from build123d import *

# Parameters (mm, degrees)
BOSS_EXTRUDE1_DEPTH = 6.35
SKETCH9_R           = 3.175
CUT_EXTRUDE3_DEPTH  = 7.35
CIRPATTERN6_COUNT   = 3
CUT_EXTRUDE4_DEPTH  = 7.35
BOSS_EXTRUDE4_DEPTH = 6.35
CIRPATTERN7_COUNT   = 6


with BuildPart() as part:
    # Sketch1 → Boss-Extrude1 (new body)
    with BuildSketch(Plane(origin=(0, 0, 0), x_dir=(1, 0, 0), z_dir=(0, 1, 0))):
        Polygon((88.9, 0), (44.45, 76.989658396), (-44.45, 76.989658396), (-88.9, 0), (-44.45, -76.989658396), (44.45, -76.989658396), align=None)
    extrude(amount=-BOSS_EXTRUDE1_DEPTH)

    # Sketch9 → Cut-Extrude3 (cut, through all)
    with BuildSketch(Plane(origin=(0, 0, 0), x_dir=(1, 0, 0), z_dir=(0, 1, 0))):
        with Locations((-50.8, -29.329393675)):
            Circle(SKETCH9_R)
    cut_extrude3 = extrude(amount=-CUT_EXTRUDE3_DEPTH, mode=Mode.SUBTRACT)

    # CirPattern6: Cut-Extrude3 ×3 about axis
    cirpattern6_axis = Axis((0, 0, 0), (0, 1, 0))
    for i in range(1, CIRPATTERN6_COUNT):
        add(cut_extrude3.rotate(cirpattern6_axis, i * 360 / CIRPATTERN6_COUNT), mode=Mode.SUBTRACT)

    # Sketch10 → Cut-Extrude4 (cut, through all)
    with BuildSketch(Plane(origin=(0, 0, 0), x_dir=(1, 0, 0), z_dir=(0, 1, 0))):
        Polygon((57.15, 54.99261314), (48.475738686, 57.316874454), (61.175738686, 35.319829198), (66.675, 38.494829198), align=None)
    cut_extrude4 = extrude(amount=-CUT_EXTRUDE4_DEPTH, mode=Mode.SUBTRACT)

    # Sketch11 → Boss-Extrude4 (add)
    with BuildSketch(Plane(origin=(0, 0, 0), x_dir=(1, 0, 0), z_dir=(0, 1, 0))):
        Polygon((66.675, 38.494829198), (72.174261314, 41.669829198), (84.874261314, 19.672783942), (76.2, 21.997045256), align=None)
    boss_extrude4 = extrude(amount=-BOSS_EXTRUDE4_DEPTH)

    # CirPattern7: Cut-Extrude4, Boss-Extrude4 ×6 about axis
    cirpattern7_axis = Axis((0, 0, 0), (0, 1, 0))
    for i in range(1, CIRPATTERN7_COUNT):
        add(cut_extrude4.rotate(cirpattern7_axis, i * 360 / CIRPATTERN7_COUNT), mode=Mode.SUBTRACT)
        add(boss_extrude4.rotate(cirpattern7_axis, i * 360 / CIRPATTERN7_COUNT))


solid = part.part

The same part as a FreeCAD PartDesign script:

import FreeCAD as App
import Part
import Sketcher

V = App.Vector
Q = App.Units.Quantity


def add_polygon(sketch, points):
    """Adds a closed chain of lines whose ends are joined by coincident constraints."""
    first, n = sketch.GeometryCount, len(points)
    for a, b in zip(points, points[1:] + points[:1]):
        sketch.addGeometry(Part.LineSegment(App.Vector(*a, 0), App.Vector(*b, 0)), False)
    for i in range(n):
        sketch.addConstraint(Sketcher.Constraint("Coincident", first + i, 2, first + (i + 1) % n, 1))

doc = App.newDocument("Part")
body = doc.addObject("PartDesign::Body", "Body")

# Sketch on XZ plane
sketch1 = body.newObject("Sketcher::SketchObject", "Sketch")
sketch1.AttachmentSupport = (doc.getObject("XZ_Plane"), [""])
sketch1.MapMode = "FlatFace"
add_polygon(sketch1, [(88.9, 0), (44.45, -76.989658), (-44.45, -76.989658), (-88.9, 0), (-44.45, 76.989658), (44.45, 76.989658)])  # lines 0-5
sketch1.addConstraint(Sketcher.Constraint("Horizontal", 1))
sketch1.addConstraint(Sketcher.Constraint("Horizontal", 4))
sketch1.addConstraint(Sketcher.Constraint("Symmetric", 0, 2, 3, 2, -1, 1))
sketch1.addConstraint(Sketcher.Constraint("Symmetric", 2, 2, 5, 2, -1, 1))
sketch1.addConstraint(Sketcher.Constraint("PointOnObject", 2, 2, -1))
sketch1.addConstraint(Sketcher.Constraint("Parallel", 2, 5))
sketch1.addConstraint(Sketcher.Constraint("Vertical", 1, 2, 3, 2))
sketch1.addConstraint(Sketcher.Constraint("DistanceX", 1, 2, 1, 1, Q("3.5 in")))
sketch1.addConstraint(Sketcher.Constraint("Angle", 0, Q("-120 deg")))
sketch1.addConstraint(Sketcher.Constraint("DistanceX", 2, 2, 5, 2, Q("7 in")))
pad1 = body.newObject("PartDesign::Pad", "Pad")
pad1.Profile = sketch1
pad1.Length = Q("0.25 in")

# Sketch on XZ plane
sketch2 = body.newObject("Sketcher::SketchObject", "Sketch001")
sketch2.AttachmentSupport = (doc.getObject("XZ_Plane"), [""])
sketch2.MapMode = "FlatFace"
sketch2.addGeometry(Part.Circle(V(-50.8, 29.329394, 0), V(0, 0, 1), 3.175), False)
sketch2.addConstraint(Sketcher.Constraint("Diameter", 0, Q("0.25 in")))
sketch2.addConstraint(Sketcher.Constraint("DistanceX", 0, 3, -1, 1, Q("2 in")))
sketch2.addConstraint(Sketcher.Constraint("DistanceY", -1, 1, 0, 3, 29.329394))
pocket1 = body.newObject("PartDesign::Pocket", "Pocket")
pocket1.Profile = sketch2
pocket1.Type = "ThroughAll"
pocket1.Reversed = True
doc.recompute()

polarpattern = body.newObject("PartDesign::PolarPattern", "PolarPattern")
polarpattern.Originals = [pocket1]
polarpattern.Axis = (doc.getObject("Y_Axis"), [""])
polarpattern.Angle = 360
polarpattern.Occurrences = 3
body.Tip = polarpattern

# Sketch on XZ plane
sketch3 = body.newObject("Sketcher::SketchObject", "Sketch002")
sketch3.AttachmentSupport = (doc.getObject("XZ_Plane"), [""])
sketch3.MapMode = "FlatFace"
add_polygon(sketch3, [(57.15, -54.992613), (48.475739, -57.316874), (61.175739, -35.319829), (66.675, -38.494829)])  # lines 0-3
sketch3.addConstraint(Sketcher.Constraint("Perpendicular", 1, 2))
sketch3.addConstraint(Sketcher.Constraint("Perpendicular", 2, 3))
sketch3.addConstraint(Sketcher.Constraint("Distance", 1, Q("1 in")))
sketch3.addConstraint(Sketcher.Constraint("Angle", 0, Q("-165 deg")))
sketch3.addConstraint(Sketcher.Constraint("Angle", 1, Q("60 deg")))
sketch3.addConstraint(Sketcher.Constraint("Distance", 2, Q("0.25 in")))
sketch3.addConstraint(Sketcher.Constraint("DistanceX", -1, 1, 3, 2, Q("2.25 in")))
sketch3.addConstraint(Sketcher.Constraint("DistanceY", 1, 2, -1, 1, 35.319829))
pocket2 = body.newObject("PartDesign::Pocket", "Pocket001")
pocket2.Profile = sketch3
pocket2.Type = "ThroughAll"
pocket2.Reversed = True

# Sketch on XZ plane
sketch4 = body.newObject("Sketcher::SketchObject", "Sketch003")
sketch4.AttachmentSupport = (doc.getObject("XZ_Plane"), [""])
sketch4.MapMode = "FlatFace"
add_polygon(sketch4, [(72.174261, -41.669829), (66.675, -38.494829), (76.2, -21.997045), (84.874261, -19.672784)])  # lines 0-3
sketch4.addConstraint(Sketcher.Constraint("Perpendicular", 0, 1))
sketch4.addConstraint(Sketcher.Constraint("Parallel", 1, 3))
sketch4.addConstraint(Sketcher.Constraint("Distance", 3, Q("1 in")))
sketch4.addConstraint(Sketcher.Constraint("DistanceX", -1, 1, 1, 2, Q("3 in")))
sketch4.addConstraint(Sketcher.Constraint("Angle", 0, Q("150 deg")))
sketch4.addConstraint(Sketcher.Constraint("Angle", 2, Q("15 deg")))
sketch4.addConstraint(Sketcher.Constraint("Distance", 0, Q("0.25 in")))
sketch4.addConstraint(Sketcher.Constraint("DistanceY", 0, 2, -1, 1, 38.494829))
pad2 = body.newObject("PartDesign::Pad", "Pad001")
pad2.Profile = sketch4
pad2.Length = Q("0.25 in")
doc.recompute()

polarpattern2 = body.newObject("PartDesign::PolarPattern", "PolarPattern001")
polarpattern2.Originals = [pocket2, pad2]
polarpattern2.Axis = (doc.getObject("Y_Axis"), [""])
polarpattern2.Angle = 360
polarpattern2.Occurrences = 6
body.Tip = polarpattern2

doc.recompute()
